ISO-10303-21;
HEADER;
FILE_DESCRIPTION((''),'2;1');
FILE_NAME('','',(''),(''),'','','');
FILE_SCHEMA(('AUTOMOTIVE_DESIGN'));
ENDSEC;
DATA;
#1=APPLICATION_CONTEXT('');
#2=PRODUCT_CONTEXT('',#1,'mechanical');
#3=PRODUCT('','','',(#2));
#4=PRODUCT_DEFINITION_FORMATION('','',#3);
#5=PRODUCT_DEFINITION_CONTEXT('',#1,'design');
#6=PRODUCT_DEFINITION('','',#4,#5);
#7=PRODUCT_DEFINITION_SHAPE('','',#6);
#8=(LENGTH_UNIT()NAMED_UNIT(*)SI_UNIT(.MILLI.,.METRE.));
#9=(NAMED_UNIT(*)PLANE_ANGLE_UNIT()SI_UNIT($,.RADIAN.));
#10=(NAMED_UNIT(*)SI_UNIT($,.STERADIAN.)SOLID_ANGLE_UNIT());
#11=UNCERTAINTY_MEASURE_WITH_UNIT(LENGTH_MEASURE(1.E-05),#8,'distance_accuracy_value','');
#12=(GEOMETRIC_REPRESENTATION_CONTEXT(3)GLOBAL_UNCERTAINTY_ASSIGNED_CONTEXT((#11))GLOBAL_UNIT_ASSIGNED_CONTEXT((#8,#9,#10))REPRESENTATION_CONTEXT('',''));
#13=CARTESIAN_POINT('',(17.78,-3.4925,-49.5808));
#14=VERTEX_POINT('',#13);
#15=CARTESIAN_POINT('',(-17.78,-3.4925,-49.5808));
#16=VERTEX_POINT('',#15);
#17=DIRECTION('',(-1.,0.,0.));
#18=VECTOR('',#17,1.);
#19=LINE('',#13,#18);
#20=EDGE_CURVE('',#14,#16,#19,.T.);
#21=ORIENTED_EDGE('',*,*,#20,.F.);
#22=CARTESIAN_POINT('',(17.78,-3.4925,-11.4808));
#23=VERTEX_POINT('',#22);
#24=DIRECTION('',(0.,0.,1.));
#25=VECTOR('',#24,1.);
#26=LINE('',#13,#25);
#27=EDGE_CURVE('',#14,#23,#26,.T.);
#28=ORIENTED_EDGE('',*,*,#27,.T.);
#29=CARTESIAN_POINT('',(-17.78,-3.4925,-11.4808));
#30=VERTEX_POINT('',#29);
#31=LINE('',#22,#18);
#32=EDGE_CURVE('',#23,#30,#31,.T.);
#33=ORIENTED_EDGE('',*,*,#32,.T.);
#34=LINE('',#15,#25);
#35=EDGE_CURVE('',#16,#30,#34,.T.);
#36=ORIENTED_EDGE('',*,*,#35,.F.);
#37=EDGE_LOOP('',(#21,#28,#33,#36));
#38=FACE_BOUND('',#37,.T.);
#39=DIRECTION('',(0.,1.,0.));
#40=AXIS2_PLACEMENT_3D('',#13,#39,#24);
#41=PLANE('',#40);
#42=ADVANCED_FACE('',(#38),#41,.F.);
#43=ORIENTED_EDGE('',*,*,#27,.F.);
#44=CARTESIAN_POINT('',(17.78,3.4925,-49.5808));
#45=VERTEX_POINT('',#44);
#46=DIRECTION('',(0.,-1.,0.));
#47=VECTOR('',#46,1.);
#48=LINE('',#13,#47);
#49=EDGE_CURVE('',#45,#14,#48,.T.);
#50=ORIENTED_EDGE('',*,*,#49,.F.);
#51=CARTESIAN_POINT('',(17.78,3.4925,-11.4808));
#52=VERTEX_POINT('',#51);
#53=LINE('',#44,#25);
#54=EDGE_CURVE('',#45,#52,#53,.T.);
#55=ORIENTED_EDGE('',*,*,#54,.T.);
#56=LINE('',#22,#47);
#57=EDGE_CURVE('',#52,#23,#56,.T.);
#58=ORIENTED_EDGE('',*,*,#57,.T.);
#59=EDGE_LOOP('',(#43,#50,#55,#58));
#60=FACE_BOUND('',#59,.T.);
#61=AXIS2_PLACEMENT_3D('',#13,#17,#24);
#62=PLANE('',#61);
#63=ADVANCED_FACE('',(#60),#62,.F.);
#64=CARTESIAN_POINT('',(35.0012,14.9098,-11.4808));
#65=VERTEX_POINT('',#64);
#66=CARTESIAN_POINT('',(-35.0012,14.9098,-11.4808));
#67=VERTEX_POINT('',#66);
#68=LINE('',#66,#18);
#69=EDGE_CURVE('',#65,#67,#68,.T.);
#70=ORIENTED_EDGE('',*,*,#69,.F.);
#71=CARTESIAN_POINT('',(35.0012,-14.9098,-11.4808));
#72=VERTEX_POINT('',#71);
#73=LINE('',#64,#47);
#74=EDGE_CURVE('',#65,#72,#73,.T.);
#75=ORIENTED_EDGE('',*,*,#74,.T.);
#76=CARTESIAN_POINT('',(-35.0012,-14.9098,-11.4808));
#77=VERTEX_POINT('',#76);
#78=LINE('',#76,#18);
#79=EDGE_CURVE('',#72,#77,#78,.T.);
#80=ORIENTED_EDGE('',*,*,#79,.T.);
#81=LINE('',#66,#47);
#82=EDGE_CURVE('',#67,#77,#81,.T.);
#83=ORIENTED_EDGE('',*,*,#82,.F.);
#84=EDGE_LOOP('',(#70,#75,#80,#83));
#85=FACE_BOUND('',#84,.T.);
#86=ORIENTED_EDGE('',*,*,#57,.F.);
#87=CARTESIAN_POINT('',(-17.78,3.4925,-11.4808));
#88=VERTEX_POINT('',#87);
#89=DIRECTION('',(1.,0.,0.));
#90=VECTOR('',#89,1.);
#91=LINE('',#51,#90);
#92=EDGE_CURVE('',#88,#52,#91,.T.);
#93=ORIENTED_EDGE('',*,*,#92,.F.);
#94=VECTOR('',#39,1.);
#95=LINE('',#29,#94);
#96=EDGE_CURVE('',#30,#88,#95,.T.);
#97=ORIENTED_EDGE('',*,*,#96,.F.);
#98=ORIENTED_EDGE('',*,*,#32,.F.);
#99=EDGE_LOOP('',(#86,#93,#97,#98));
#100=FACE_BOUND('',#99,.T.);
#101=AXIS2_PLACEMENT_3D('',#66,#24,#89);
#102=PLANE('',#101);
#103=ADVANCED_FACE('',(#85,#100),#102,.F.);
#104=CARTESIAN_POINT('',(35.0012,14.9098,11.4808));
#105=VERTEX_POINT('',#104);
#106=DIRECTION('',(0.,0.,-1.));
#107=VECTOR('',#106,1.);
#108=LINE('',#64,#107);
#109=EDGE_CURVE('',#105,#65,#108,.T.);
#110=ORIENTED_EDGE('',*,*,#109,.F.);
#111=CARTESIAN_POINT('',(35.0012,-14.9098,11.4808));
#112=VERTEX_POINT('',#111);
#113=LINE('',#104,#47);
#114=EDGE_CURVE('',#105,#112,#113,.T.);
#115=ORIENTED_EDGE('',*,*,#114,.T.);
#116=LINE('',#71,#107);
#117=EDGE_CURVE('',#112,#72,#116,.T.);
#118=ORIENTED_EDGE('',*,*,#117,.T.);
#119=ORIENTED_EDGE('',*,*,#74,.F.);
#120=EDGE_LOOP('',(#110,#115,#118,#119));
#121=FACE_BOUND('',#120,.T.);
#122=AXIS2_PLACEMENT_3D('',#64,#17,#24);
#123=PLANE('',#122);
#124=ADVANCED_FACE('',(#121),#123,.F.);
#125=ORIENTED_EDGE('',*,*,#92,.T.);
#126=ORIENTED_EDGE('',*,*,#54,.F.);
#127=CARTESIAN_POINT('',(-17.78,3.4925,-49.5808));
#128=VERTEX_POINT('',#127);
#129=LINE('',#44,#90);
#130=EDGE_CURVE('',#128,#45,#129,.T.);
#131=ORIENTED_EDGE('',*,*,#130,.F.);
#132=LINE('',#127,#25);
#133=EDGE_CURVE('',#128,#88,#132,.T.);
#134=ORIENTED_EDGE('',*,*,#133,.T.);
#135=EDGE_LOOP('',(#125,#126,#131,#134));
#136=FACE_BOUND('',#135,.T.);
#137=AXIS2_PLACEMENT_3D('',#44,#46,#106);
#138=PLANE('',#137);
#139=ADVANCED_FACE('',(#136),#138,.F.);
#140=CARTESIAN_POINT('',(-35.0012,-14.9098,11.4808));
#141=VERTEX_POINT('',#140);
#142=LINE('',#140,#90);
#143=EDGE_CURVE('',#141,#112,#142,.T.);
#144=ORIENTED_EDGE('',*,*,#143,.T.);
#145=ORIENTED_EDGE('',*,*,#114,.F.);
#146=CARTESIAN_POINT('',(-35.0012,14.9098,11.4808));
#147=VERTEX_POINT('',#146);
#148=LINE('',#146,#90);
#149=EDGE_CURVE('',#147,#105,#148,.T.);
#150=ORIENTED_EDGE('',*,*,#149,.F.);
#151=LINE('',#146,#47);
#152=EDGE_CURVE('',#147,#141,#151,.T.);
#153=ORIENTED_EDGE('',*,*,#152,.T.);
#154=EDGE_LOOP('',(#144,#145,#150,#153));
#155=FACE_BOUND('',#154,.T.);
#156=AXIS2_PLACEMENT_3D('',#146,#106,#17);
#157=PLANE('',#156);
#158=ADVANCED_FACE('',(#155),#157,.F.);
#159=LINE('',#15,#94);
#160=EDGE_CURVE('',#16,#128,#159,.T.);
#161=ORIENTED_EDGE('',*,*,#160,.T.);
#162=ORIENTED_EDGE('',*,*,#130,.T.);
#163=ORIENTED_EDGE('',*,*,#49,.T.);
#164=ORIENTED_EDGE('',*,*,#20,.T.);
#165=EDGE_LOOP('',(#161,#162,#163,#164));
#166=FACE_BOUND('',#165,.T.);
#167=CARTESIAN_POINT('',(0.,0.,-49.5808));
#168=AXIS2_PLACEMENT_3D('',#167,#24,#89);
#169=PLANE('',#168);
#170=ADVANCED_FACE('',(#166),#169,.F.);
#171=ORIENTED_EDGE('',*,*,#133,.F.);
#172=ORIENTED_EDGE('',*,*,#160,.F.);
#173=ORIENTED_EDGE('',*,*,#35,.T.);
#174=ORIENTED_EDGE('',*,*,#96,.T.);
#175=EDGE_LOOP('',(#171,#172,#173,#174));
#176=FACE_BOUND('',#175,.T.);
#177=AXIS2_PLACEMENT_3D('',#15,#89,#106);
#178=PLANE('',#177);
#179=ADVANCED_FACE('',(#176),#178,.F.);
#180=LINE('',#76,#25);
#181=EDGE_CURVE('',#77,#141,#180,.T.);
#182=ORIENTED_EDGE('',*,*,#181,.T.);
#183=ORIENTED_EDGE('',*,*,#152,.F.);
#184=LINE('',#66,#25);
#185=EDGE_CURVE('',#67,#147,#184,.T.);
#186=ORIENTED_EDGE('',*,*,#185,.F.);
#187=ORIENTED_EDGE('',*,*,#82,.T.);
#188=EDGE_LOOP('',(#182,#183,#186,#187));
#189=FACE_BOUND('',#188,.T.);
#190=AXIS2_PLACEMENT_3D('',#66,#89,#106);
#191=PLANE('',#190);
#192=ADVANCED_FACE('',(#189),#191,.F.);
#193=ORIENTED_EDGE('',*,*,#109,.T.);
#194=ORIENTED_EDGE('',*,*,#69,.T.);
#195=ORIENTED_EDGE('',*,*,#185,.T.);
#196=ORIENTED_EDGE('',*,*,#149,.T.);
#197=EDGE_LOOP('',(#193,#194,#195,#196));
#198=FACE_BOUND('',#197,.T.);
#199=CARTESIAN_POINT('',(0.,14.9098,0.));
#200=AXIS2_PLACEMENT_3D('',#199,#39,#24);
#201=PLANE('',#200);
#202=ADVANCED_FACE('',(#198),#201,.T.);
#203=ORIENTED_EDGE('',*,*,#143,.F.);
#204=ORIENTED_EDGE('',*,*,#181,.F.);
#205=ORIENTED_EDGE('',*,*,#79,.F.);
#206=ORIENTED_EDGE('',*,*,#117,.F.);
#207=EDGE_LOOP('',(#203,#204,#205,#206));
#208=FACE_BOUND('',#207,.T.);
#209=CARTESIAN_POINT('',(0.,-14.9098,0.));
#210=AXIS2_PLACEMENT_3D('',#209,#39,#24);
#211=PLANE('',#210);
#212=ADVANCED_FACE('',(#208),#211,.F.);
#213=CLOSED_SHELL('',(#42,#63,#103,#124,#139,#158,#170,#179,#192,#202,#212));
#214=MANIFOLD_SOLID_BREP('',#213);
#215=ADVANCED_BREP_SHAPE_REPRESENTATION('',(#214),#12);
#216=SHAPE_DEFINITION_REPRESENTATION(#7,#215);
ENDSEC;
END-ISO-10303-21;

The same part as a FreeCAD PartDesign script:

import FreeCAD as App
import Part
import Sketcher

V = App.Vector
Q = App.Units.Quantity


def add_polygon(sketch, points):
    """Adds a closed chain of lines whose ends are joined by coincident constraints."""
    first, n = sketch.GeometryCount, len(points)
    for a, b in zip(points, points[1:] + points[:1]):
        sketch.addGeometry(Part.LineSegment(App.Vector(*a, 0), App.Vector(*b, 0)), False)
    for i in range(n):
        sketch.addConstraint(Sketcher.Constraint("Coincident", first + i, 2, first + (i + 1) % n, 1))

doc = App.newDocument("Part")
body = doc.addObject("PartDesign::Body", "Body")

sketch1 = body.newObject("Sketcher::SketchObject", "Sketch")
sketch1.AttachmentSupport = (doc.getObject("XZ_Plane"), [""])
sketch1.MapMode = "FlatFace"
add_polygon(sketch1, [(-35, -11), (-35, 11), (35, 11), (35, -11)])
sketch1.addConstraint(Sketcher.Constraint("Vertical", 0))
sketch1.addConstraint(Sketcher.Constraint("Horizontal", 1))
sketch1.addConstraint(Sketcher.Constraint("Vertical", 2))
sketch1.addConstraint(Sketcher.Constraint("Horizontal", 3))
sketch1.addConstraint(Sketcher.Constraint("Symmetric", 0, 2, 2, 2, -1, 1))
sketch1.addConstraint(Sketcher.Constraint("DistanceX", 1, 1, 1, 2, Q("2.756 in")))
sketch1.addConstraint(Sketcher.Constraint("DistanceY", 0, 1, 0, 2, Q("0.904 in")))
pad1 = body.newObject("PartDesign::Pad", "Pad")
pad1.Profile = sketch1
pad1.Length = Q("1.174 in")
pad1.Midplane = True

sketch2 = body.newObject("Sketcher::SketchObject", "Sketch001")
sketch2.AttachmentSupport = (doc.getObject("XY_Plane"), [""])
sketch2.MapMode = "FlatFace"
sketch2.AttachmentOffset = App.Placement(V(0, 0, -0.452 * 25.4), App.Rotation())
add_polygon(sketch2, [(18, 3), (18, -3), (-18, -3), (-18, 3)])
sketch2.addConstraint(Sketcher.Constraint("Vertical", 0))
sketch2.addConstraint(Sketcher.Constraint("Horizontal", 1))
sketch2.addConstraint(Sketcher.Constraint("Vertical", 2))
sketch2.addConstraint(Sketcher.Constraint("Horizontal", 3))
sketch2.addConstraint(Sketcher.Constraint("Symmetric", 0, 2, 2, 2, -1, 1))
sketch2.addConstraint(Sketcher.Constraint("DistanceX", 1, 2, 1, 1, Q("1.4 in")))
sketch2.addConstraint(Sketcher.Constraint("DistanceY", 0, 2, 0, 1, Q("0.275 in")))
pad2 = body.newObject("PartDesign::Pad", "Pad001")
pad2.Profile = sketch2
pad2.Length = Q("1.5 in")
pad2.Reversed = True

doc.recompute()
